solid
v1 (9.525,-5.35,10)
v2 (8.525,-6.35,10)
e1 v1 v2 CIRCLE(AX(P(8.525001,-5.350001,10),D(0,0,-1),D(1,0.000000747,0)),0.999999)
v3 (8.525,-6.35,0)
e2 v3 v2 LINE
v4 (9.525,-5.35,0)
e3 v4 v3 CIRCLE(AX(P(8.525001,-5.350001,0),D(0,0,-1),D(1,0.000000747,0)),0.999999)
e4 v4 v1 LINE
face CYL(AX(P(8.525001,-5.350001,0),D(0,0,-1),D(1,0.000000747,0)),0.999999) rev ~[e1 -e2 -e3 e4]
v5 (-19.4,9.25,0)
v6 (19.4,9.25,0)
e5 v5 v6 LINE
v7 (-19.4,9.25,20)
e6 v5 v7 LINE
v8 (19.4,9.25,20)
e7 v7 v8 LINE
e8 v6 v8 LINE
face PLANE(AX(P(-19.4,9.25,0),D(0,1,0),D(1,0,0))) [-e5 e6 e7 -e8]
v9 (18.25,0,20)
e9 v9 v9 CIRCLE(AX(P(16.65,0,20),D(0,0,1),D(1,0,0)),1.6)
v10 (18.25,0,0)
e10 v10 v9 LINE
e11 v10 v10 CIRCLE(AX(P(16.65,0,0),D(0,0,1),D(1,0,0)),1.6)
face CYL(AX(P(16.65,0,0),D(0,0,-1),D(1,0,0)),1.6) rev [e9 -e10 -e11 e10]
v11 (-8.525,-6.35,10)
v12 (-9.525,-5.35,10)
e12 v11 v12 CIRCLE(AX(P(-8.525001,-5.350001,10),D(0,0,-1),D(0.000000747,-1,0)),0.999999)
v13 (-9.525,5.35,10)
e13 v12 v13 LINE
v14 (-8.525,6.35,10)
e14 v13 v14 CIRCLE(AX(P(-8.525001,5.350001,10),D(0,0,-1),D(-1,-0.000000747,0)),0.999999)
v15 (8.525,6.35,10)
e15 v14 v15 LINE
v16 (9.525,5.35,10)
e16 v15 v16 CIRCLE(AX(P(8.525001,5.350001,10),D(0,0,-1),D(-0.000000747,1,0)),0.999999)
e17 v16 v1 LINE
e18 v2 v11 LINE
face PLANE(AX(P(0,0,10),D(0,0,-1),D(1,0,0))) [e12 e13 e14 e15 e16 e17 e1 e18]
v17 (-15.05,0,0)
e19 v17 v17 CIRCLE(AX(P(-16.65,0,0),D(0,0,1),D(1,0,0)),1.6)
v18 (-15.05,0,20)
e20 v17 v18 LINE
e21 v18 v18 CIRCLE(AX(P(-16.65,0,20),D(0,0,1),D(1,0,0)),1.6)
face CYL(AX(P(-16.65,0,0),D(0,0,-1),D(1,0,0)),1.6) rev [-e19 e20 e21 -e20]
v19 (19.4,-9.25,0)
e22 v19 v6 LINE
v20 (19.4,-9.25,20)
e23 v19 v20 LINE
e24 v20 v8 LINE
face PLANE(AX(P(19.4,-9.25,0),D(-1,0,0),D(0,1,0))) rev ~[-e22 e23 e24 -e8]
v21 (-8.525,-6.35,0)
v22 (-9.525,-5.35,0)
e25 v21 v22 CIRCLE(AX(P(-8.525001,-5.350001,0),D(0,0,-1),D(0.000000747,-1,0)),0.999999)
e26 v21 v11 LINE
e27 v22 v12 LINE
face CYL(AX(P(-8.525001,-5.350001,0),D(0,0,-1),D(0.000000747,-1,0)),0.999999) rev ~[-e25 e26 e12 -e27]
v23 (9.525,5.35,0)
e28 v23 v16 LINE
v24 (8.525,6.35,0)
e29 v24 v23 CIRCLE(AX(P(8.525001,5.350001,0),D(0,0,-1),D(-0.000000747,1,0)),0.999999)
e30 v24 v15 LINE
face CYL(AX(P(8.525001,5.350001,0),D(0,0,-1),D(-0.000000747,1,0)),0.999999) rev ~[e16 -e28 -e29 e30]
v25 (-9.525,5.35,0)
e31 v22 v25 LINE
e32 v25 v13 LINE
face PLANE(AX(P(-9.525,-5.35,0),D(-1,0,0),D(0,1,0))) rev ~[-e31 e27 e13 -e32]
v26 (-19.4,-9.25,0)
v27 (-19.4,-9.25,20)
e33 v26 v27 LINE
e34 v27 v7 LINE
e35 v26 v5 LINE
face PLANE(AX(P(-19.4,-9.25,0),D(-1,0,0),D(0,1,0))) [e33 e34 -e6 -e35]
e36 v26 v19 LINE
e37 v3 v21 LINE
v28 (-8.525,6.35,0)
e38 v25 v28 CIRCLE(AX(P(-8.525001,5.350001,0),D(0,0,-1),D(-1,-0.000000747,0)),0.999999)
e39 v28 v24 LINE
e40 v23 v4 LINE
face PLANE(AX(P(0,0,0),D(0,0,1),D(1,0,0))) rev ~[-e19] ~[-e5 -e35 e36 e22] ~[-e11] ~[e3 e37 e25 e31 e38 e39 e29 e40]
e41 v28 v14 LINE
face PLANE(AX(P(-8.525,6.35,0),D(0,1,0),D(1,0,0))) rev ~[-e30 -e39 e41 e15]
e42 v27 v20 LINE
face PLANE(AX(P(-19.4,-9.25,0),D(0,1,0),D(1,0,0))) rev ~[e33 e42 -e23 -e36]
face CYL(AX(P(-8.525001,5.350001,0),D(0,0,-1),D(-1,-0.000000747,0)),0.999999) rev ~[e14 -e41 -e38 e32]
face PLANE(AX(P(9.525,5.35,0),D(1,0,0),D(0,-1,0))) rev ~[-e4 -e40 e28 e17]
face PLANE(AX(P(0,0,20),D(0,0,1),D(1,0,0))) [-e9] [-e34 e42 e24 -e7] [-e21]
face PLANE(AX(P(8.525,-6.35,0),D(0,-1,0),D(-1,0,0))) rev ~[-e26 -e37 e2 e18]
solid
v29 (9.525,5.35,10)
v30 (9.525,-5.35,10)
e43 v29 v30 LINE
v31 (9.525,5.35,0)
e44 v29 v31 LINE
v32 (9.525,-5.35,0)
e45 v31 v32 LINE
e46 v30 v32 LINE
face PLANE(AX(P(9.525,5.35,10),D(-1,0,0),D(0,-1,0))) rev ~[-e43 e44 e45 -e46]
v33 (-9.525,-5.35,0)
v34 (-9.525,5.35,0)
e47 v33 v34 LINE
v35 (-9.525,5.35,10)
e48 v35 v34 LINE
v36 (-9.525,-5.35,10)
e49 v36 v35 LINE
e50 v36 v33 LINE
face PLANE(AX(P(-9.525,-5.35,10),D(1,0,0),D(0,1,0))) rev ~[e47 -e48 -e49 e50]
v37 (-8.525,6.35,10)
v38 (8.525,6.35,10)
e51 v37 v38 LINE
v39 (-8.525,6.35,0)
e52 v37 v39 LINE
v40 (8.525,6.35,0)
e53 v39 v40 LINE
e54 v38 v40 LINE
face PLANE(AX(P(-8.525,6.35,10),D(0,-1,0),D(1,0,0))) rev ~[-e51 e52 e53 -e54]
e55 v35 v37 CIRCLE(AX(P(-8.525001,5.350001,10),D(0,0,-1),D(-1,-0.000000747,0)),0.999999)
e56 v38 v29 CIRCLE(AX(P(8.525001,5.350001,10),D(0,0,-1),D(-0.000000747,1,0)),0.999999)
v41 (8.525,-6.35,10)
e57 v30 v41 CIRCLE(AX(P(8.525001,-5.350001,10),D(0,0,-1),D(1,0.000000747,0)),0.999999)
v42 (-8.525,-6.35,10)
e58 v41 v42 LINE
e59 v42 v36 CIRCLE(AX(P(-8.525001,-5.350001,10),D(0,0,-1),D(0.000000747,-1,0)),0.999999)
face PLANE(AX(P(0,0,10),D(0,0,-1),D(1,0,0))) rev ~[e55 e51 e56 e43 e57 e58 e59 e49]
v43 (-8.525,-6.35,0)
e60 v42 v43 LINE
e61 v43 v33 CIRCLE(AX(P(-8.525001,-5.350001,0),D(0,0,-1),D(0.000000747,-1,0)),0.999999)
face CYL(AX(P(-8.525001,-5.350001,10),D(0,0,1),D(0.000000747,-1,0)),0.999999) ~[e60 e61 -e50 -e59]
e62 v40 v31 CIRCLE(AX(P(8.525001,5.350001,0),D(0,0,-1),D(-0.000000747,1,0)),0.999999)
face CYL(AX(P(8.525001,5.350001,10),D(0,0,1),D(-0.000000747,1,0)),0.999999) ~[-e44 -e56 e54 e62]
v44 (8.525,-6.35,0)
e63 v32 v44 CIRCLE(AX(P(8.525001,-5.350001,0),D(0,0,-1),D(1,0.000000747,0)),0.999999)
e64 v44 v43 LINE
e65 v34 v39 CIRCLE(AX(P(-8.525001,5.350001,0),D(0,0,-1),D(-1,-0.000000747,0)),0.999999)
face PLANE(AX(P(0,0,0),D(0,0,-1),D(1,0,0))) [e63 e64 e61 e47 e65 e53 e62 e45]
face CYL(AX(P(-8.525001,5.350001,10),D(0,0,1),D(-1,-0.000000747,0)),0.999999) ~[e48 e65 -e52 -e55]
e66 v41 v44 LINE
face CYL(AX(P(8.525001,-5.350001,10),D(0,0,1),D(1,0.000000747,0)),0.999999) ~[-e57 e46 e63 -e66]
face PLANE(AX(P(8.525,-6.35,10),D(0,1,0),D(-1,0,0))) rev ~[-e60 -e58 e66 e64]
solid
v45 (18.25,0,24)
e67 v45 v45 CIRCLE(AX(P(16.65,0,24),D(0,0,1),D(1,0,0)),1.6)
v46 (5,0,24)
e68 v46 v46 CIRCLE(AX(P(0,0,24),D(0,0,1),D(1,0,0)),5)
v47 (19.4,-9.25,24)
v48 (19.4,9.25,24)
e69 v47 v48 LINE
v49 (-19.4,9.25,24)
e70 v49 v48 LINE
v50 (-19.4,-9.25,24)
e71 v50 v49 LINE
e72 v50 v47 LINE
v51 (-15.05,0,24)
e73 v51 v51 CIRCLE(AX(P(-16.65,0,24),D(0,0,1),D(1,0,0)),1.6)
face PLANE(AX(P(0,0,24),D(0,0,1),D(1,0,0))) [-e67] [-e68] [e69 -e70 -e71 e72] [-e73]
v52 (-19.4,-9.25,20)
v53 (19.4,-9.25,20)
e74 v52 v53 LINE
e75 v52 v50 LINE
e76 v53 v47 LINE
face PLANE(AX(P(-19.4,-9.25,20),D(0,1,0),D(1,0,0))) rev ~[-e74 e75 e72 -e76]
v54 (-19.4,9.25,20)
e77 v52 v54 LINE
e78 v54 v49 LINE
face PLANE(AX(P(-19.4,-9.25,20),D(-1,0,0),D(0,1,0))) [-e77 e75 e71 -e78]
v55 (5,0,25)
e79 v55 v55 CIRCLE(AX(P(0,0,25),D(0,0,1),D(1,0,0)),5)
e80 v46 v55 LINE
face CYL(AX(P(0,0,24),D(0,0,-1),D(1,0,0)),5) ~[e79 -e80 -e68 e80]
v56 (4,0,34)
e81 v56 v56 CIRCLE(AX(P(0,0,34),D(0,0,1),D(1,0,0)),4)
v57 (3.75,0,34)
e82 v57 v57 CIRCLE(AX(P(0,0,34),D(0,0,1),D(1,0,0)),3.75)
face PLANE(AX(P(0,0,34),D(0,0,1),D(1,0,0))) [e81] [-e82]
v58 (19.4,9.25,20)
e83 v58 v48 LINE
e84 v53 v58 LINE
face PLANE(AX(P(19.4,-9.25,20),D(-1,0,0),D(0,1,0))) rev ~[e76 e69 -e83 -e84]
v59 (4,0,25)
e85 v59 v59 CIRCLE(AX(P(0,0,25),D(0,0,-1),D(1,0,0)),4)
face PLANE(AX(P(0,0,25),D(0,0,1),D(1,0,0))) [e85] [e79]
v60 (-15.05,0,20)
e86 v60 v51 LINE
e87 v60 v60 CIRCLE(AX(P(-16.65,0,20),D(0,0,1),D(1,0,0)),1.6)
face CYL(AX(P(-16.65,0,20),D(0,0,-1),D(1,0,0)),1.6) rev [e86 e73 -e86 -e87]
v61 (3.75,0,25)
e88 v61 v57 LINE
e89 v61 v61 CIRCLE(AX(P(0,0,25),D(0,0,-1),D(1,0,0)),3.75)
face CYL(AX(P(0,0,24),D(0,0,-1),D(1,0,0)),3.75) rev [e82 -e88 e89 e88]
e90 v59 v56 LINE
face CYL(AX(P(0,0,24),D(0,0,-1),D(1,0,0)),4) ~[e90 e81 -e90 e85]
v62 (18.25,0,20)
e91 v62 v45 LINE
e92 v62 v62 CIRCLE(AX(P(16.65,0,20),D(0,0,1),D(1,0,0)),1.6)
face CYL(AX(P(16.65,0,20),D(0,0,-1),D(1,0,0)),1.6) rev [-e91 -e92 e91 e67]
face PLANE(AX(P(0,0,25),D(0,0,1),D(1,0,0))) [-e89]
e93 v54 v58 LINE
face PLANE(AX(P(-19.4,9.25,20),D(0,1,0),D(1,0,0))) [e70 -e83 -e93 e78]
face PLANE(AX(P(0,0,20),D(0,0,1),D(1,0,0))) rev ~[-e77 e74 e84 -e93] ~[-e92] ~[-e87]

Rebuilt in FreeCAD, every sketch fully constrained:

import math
import FreeCAD as App
import Part
import Sketcher

V = App.Vector
Q = App.Units.Quantity

doc = App.newDocument("Part")
body = doc.addObject("PartDesign::Body", "Body")

sketch1 = body.newObject("Sketcher::SketchObject", "Sketch")
sketch1.AttachmentSupport = (doc.getObject("XY_Plane"), [""])
sketch1.MapMode = "FlatFace"
sketch1.addGeometry([
    Part.LineSegment(V(-19.4, 9.25, 0), V(-19.4, -9.25, 0)),
    Part.LineSegment(V(-19.4, -9.25, 0), V(19.4, -9.25, 0)),
    Part.LineSegment(V(19.4, -9.25, 0), V(19.4, 9.25, 0)),
    Part.LineSegment(V(19.4, 9.25, 0), V(-19.4, 9.25, 0)),
    Part.Circle(V(-16.65, 0, 0), V(0, 0, 1), 1.6),
    Part.Circle(V(16.65, 0, 0), V(0, 0, 1), 1.6),
], False)
sketch1.addConstraint([
    Sketcher.Constraint("Coincident", 0, 2, 1, 1),
    Sketcher.Constraint("Coincident", 1, 2, 2, 1),
    Sketcher.Constraint("Coincident", 2, 2, 3, 1),
    Sketcher.Constraint("Coincident", 3, 2, 0, 1),
    Sketcher.Constraint("Vertical", 0),
    Sketcher.Constraint("Horizontal", 1),
    Sketcher.Constraint("Vertical", 2),
    Sketcher.Constraint("Horizontal", 3),
    Sketcher.Constraint("Equal", 4, 5),
    Sketcher.Constraint("Symmetric", 4, 3, 5, 3, -1, 1),
    Sketcher.Constraint("Symmetric", 0, 2, 2, 2, -1, 1),
    Sketcher.Constraint("PointOnObject", 4, 3, -1),
    Sketcher.Constraint("Diameter", 4, Q("3.2 mm")),
    Sketcher.Constraint("DistanceX", 1, 1, 1, 2, Q("38.8 mm")),
    Sketcher.Constraint("DistanceY", 0, 2, 0, 1, Q("18.5 mm")),
    Sketcher.Constraint("DistanceX", 4, 3, 5, 3, Q("33.3 mm")),
])
pad1 = body.newObject("PartDesign::Pad", "Pad")
pad1.Profile = sketch1
pad1.Length = 20

sketch2 = body.newObject("Sketcher::SketchObject", "Sketch001")
sketch2.AttachmentSupport = (doc.getObject("XY_Plane"), [""])
sketch2.MapMode = "FlatFace"
sketch2.addGeometry([
    Part.LineSegment(V(-8.525, 6.35, 0), V(8.525, 6.35, 0)),
    Part.ArcOfCircle(Part.Circle(V(8.525001, 5.350001, 0), V(0, 0, 1), 0.999999), math.radians(-0.000043), math.radians(90.000043)),
    Part.LineSegment(V(9.525, 5.35, 0), V(9.525, -5.35, 0)),
    Part.ArcOfCircle(Part.Circle(V(8.525001, -5.350001, 0), V(0, 0, 1), 0.999999), math.radians(-90.000043), math.radians(0.000043)),
    Part.LineSegment(V(8.525, -6.35, 0), V(-8.525, -6.35, 0)),
    Part.ArcOfCircle(Part.Circle(V(-8.525001, -5.350001, 0), V(0, 0, 1), 0.999999), math.radians(179.999957), math.radians(270.000043)),
    Part.LineSegment(V(-9.525, -5.35, 0), V(-9.525, 5.35, 0)),
    Part.ArcOfCircle(Part.Circle(V(-8.525001, 5.350001, 0), V(0, 0, 1), 0.999999), math.radians(89.999957), math.radians(180.000043)),
], False)
sketch2.addConstraint([
    Sketcher.Constraint("Tangent", 0, 2, 1, 2),
    Sketcher.Constraint("Tangent", 1, 1, 2, 1),
    Sketcher.Constraint("Tangent", 2, 2, 3, 2),
    Sketcher.Constraint("Tangent", 3, 1, 4, 1),
    Sketcher.Constraint("Tangent", 4, 2, 5, 2),
    Sketcher.Constraint("Tangent", 5, 1, 6, 1),
    Sketcher.Constraint("Tangent", 6, 2, 7, 2),
    Sketcher.Constraint("Tangent", 7, 1, 0, 1),
    Sketcher.Constraint("Horizontal", 0),
    Sketcher.Constraint("Vertical", 2),
    Sketcher.Constraint("Horizontal", 4),
    Sketcher.Constraint("Vertical", 6),
    Sketcher.Constraint("Equal", 1, 3),
    Sketcher.Constraint("Equal", 3, 5),
    Sketcher.Constraint("Equal", 5, 7),
    Sketcher.Constraint("Symmetric", 1, 3, 5, 3, -1, 1),
    Sketcher.Constraint("Radius", 1, Q("0.999999 mm")),
    Sketcher.Constraint("DistanceY", 2, 2, 2, 1, Q("10.7 mm")),
    Sketcher.Constraint("DistanceX", 0, 1, 0, 2, Q("17.05 mm")),
])
pocket1 = body.newObject("PartDesign::Pocket", "Pocket")
pocket1.Profile = sketch2
pocket1.Length = 10
pocket1.Reversed = True
body2 = doc.addObject("PartDesign::Body", "Body001")

sketch3 = body2.newObject("Sketcher::SketchObject", "Sketch002")
sketch3.AttachmentSupport = (doc.getObject("XY_Plane001"), [""])
sketch3.MapMode = "FlatFace"
sketch3.AttachmentOffset = App.Placement(V(0, 0, 20), App.Rotation())
sketch3.addGeometry([
    Part.LineSegment(V(-19.4, 9.25, 0), V(-19.4, -9.25, 0)),
    Part.LineSegment(V(-19.4, -9.25, 0), V(19.4, -9.25, 0)),
    Part.LineSegment(V(19.4, -9.25, 0), V(19.4, 9.25, 0)),
    Part.LineSegment(V(19.4, 9.25, 0), V(-19.4, 9.25, 0)),
    Part.Circle(V(-16.65, 0, 0), V(0, 0, 1), 1.6),
    Part.Circle(V(16.65, 0, 0), V(0, 0, 1), 1.6),
], False)
sketch3.addConstraint([
    Sketcher.Constraint("Coincident", 0, 2, 1, 1),
    Sketcher.Constraint("Coincident", 1, 2, 2, 1),
    Sketcher.Constraint("Coincident", 2, 2, 3, 1),
    Sketcher.Constraint("Coincident", 3, 2, 0, 1),
    Sketcher.Constraint("Vertical", 0),
    Sketcher.Constraint("Horizontal", 1),
    Sketcher.Constraint("Vertical", 2),
    Sketcher.Constraint("Horizontal", 3),
    Sketcher.Constraint("Equal", 4, 5),
    Sketcher.Constraint("Symmetric", 4, 3, 5, 3, -1, 1),
    Sketcher.Constraint("Symmetric", 0, 2, 2, 2, -1, 1),
    Sketcher.Constraint("PointOnObject", 4, 3, -1),
    Sketcher.Constraint("Diameter", 4, Q("3.2 mm")),
    Sketcher.Constraint("DistanceX", 1, 1, 1, 2, Q("38.8 mm")),
    Sketcher.Constraint("DistanceY", 0, 2, 0, 1, Q("18.5 mm")),
    Sketcher.Constraint("DistanceX", 4, 3, 5, 3, Q("33.3 mm")),
])
pad2 = body2.newObject("PartDesign::Pad", "Pad001")
pad2.Profile = sketch3
pad2.Length = 4

sketch4 = body2.newObject("Sketcher::SketchObject", "Sketch003")
sketch4.AttachmentSupport = (doc.getObject("XY_Plane001"), [""])
sketch4.MapMode = "FlatFace"
sketch4.AttachmentOffset = App.Placement(V(0, 0, 24), App.Rotation())
sketch4.addGeometry([
    Part.Circle(V(0, 0, 0), V(0, 0, 1), 4),
    Part.Circle(V(0, 0, 0), V(0, 0, 1), 3.75),
], False)
sketch4.addConstraint([
    Sketcher.Constraint("Coincident", 0, 3, -1, 1),
    Sketcher.Constraint("Coincident", 1, 3, -1, 1),
    Sketcher.Constraint("Diameter", 0, Q("8 mm")),
    Sketcher.Constraint("Diameter", 1, Q("7.5 mm")),
])
pad3 = body2.newObject("PartDesign::Pad", "Pad002")
pad3.Profile = sketch4
pad3.Length = 10

sketch5 = body2.newObject("Sketcher::SketchObject", "Sketch004")
sketch5.AttachmentSupport = (doc.getObject("XY_Plane001"), [""])
sketch5.MapMode = "FlatFace"
sketch5.AttachmentOffset = App.Placement(V(0, 0, 24), App.Rotation())
sketch5.addGeometry(Part.Circle(V(0, 0, 0), V(0, 0, 1), 5), False)
sketch5.addConstraint([
    Sketcher.Constraint("Coincident", 0, 3, -1, 1),
    Sketcher.Constraint("Diameter", 0, Q("10 mm")),
])
pad4 = body2.newObject("PartDesign::Pad", "Pad003")
pad4.Profile = sketch5
pad4.Length = 1
body3 = doc.addObject("PartDesign::Body", "Body002")

sketch6 = body3.newObject("Sketcher::SketchObject", "Sketch005")
sketch6.AttachmentSupport = (doc.getObject("XY_Plane002"), [""])
sketch6.MapMode = "FlatFace"
sketch6.AttachmentOffset = App.Placement(V(0, 0, 10), App.Rotation())
sketch6.addGeometry([
    Part.LineSegment(V(-9.525, -5.35, 0), V(-9.525, 5.35, 0)),
    Part.ArcOfCircle(Part.Circle(V(-8.525001, 5.350001, 0), V(0, 0, 1), 0.999999), math.radians(89.999957), math.radians(180.000043)),
    Part.LineSegment(V(-8.525, 6.35, 0), V(8.525, 6.35, 0)),
    Part.ArcOfCircle(Part.Circle(V(8.525001, 5.350001, 0), V(0, 0, 1), 0.999999), math.radians(-0.000043), math.radians(90.000043)),
    Part.LineSegment(V(9.525, 5.35, 0), V(9.525, -5.35, 0)),
    Part.ArcOfCircle(Part.Circle(V(8.525001, -5.350001, 0), V(0, 0, 1), 0.999999), math.radians(-90.000043), math.radians(0.000043)),
    Part.LineSegment(V(8.525, -6.35, 0), V(-8.525, -6.35, 0)),
    Part.ArcOfCircle(Part.Circle(V(-8.525001, -5.350001, 0), V(0, 0, 1), 0.999999), math.radians(179.999957), math.radians(270.000043)),
], False)
sketch6.addConstraint([
    Sketcher.Constraint("Tangent", 0, 2, 1, 2),
    Sketcher.Constraint("Tangent", 1, 1, 2, 1),
    Sketcher.Constraint("Tangent", 2, 2, 3, 2),
    Sketcher.Constraint("Tangent", 3, 1, 4, 1),
    Sketcher.Constraint("Tangent", 4, 2, 5, 2),
    Sketcher.Constraint("Tangent", 5, 1, 6, 1),
    Sketcher.Constraint("Tangent", 6, 2, 7, 2),
    Sketcher.Constraint("Tangent", 7, 1, 0, 1),
    Sketcher.Constraint("Vertical", 0),
    Sketcher.Constraint("Horizontal", 2),
    Sketcher.Constraint("Vertical", 4),
    Sketcher.Constraint("Horizontal", 6),
    Sketcher.Constraint("Equal", 1, 3),
    Sketcher.Constraint("Equal", 3, 5),
    Sketcher.Constraint("Equal", 5, 7),
    Sketcher.Constraint("Symmetric", 1, 3, 5, 3, -1, 1),
    Sketcher.Constraint("Radius", 1, Q("0.999999 mm")),
    Sketcher.Constraint("DistanceY", 0, 1, 0, 2, Q("10.7 mm")),
    Sketcher.Constraint("DistanceX", 2, 1, 2, 2, Q("17.05 mm")),
])
pad5 = body3.newObject("PartDesign::Pad", "Pad004")
pad5.Profile = sketch6
pad5.Length = 10
pad5.Reversed = True

doc.recompute()
